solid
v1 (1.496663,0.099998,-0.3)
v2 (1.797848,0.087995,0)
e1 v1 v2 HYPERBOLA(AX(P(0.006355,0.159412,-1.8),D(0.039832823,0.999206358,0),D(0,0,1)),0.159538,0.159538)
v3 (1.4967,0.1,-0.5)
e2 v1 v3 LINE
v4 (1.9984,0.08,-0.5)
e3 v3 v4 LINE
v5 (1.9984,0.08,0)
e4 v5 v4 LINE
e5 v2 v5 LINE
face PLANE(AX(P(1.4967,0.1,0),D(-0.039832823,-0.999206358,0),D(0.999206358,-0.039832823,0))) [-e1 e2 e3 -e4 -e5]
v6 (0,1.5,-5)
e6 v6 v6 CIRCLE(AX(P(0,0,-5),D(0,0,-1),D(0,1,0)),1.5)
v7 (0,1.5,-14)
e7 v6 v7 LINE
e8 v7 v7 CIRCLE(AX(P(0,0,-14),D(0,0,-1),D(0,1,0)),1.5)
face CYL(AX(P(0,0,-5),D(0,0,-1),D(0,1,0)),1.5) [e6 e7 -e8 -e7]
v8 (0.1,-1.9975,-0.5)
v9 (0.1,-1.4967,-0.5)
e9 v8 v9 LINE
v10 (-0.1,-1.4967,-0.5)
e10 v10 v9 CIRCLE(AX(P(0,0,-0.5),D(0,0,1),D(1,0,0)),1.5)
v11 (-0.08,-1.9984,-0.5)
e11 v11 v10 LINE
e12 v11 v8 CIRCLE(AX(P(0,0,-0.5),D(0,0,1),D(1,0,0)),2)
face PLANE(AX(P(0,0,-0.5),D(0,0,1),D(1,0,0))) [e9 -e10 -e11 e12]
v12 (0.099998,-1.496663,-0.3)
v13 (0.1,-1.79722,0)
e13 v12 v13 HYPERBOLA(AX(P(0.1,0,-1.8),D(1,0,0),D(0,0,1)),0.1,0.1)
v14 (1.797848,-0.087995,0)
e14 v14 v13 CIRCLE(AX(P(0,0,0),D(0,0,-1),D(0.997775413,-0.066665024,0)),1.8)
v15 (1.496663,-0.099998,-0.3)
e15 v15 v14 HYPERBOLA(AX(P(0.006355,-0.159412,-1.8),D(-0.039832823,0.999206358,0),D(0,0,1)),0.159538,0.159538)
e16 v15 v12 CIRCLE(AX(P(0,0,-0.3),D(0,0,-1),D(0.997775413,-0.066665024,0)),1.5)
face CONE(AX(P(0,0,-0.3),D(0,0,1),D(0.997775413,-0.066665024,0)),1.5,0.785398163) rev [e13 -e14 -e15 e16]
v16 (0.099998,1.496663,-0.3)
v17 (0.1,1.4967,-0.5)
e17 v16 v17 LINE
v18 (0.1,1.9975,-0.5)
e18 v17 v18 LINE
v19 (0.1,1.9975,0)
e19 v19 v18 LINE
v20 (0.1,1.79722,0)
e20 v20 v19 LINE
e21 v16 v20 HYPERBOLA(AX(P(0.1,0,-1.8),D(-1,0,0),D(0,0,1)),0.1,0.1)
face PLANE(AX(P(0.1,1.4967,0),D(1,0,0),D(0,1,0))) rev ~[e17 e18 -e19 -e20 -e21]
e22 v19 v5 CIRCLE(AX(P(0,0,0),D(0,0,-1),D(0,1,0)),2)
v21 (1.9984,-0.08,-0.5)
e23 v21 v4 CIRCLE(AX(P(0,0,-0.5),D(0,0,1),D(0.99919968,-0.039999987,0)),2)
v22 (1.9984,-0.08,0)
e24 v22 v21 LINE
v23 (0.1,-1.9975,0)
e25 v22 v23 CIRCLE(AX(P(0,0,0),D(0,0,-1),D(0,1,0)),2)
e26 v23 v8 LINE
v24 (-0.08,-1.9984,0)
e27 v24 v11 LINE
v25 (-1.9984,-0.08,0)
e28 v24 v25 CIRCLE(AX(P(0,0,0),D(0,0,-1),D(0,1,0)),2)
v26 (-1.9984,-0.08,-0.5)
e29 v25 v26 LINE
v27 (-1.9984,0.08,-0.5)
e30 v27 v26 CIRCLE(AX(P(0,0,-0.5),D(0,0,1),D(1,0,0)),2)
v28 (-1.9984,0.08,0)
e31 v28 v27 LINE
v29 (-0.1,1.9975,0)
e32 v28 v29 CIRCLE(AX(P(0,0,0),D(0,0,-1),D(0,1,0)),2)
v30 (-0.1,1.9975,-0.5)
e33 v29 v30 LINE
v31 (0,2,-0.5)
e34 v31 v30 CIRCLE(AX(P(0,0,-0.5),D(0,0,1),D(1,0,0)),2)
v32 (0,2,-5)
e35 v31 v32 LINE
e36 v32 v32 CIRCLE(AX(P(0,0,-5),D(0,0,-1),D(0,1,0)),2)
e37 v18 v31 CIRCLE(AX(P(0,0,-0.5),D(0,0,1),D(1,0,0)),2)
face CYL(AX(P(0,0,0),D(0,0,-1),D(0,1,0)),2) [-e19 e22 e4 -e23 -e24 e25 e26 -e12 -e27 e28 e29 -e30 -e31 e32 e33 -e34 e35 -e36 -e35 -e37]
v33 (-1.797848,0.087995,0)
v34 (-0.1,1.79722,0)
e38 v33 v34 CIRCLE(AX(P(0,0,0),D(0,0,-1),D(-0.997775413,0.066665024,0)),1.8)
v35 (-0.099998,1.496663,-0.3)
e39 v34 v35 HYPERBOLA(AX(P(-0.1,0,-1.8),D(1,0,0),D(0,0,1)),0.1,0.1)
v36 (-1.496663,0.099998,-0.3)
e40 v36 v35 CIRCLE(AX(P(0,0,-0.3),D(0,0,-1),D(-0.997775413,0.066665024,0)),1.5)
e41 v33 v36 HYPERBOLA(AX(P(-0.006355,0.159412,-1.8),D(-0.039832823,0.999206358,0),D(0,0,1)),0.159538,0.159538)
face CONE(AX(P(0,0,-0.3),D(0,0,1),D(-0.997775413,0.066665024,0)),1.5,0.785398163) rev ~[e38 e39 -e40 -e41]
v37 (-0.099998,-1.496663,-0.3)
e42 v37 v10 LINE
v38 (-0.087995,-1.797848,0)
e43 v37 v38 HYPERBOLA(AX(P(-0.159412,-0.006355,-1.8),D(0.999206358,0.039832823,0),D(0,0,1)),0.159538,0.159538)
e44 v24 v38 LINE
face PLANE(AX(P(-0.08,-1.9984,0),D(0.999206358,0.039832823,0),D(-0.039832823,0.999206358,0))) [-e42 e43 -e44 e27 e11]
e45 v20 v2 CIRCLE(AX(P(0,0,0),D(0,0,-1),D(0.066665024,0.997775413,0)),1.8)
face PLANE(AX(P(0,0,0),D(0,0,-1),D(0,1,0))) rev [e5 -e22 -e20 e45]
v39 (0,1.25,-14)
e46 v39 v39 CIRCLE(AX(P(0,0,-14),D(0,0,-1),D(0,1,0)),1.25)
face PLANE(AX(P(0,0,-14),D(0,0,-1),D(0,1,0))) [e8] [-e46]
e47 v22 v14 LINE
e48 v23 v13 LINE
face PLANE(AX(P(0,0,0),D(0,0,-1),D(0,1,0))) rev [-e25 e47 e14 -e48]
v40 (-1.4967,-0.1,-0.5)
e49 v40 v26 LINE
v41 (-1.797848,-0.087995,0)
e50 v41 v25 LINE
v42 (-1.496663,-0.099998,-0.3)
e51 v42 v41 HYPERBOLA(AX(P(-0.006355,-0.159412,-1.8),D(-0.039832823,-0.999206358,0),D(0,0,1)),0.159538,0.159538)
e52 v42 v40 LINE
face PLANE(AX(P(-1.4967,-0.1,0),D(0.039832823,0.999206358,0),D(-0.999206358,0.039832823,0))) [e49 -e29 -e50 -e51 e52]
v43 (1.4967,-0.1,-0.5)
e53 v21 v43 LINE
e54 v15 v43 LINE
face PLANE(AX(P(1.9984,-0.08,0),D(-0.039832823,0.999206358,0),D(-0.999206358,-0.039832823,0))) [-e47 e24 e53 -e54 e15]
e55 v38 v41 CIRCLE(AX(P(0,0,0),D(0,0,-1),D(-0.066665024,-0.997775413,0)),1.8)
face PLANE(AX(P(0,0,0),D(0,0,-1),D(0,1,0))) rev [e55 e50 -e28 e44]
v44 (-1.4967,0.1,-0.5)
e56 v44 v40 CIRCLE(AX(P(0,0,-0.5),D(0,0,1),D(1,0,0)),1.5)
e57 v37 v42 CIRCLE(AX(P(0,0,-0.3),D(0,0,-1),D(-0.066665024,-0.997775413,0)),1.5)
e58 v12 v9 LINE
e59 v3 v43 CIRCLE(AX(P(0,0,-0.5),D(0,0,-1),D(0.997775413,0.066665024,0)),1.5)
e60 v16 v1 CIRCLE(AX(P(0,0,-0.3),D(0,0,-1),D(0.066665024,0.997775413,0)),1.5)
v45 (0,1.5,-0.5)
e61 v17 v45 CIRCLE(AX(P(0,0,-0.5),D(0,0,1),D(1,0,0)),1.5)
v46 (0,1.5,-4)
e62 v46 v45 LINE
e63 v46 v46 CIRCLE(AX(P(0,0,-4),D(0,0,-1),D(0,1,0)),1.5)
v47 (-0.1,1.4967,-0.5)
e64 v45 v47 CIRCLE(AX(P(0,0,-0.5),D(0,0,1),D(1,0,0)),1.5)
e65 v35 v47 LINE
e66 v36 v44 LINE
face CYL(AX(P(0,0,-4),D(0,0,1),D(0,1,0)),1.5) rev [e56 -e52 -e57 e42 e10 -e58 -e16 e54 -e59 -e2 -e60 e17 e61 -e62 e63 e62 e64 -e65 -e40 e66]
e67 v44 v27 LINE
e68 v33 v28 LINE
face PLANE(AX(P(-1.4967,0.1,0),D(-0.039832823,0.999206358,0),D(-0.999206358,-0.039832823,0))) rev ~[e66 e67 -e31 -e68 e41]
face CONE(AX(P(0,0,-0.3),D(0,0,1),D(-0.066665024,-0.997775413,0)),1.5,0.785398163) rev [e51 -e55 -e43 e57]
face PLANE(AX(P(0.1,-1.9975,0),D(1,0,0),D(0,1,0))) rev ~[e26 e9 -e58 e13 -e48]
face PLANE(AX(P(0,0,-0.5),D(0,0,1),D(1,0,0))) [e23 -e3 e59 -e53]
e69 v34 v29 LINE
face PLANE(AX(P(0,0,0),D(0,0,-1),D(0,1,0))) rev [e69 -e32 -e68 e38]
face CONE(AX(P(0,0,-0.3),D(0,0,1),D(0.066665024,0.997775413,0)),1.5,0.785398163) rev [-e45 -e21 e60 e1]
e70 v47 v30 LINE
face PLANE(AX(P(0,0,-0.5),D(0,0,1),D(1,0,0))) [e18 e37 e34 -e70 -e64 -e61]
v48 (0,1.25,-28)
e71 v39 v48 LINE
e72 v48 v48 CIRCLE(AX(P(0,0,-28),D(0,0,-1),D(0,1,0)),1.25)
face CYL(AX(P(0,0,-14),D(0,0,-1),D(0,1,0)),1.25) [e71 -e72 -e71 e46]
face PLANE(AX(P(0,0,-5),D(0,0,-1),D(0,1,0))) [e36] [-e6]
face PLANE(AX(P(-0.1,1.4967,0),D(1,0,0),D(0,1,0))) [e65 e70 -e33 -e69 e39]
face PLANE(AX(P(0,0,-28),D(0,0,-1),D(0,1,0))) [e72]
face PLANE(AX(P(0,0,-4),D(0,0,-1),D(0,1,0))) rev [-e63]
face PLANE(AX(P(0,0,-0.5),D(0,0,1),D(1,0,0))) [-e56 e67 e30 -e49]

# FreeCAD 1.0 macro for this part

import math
import FreeCAD as App
import Part
import Sketcher

V = App.Vector


def edges_at(feature, points):
    """Names of the edges that pass closest to the given points."""
    edges = feature.Shape.Edges
    near = lambda p: min(range(len(edges)), key=lambda i: edges[i].distToShape(Part.Vertex(*p))[0])
    return sorted({f"Edge{near(p) + 1}" for p in points})


def add_polygon(sketch, points):
    """Adds a closed chain of lines whose ends are joined by coincident constraints."""
    first, n = sketch.GeometryCount, len(points)
    for a, b in zip(points, points[1:] + points[:1]):
        sketch.addGeometry(Part.LineSegment(App.Vector(*a, 0), App.Vector(*b, 0)), False)
    for i in range(n):
        sketch.addConstraint(Sketcher.Constraint("Coincident", first + i, 2, first + (i + 1) % n, 1))

doc = App.newDocument("Part")
params = doc.addObject("Spreadsheet::Sheet", "Params")
for row, (alias, value) in enumerate([
    ("sketch1_height", "4 mm"),
    ("sketch1_height2", "9 mm"),
    ("sketch1_height3", "5 mm"),
    ("sketch1_width", "0.5 mm"),
    ("sketch1_width2", "1.25 mm"),
    ("revolution_angle", "360 deg"),
    ("sketch2_radius", "2 mm"),
    ("sketch2_radius2", "1.5 mm"),
    ("pocket1_length", "0.5 mm"),
    ("chamfer_size", "0.3 mm"),
], start=1):
    params.set(f"A{row}", alias)
    params.set(f"B{row}", "=" + value)
    params.setAlias(f"B{row}", alias)

body = doc.addObject("PartDesign::Body", "Body")

sketch1 = doc.addObject("Sketcher::SketchObject", "Sketch")
body.addObject(sketch1)
sketch1.AttachmentSupport = (doc.YZ_Plane, [""])
sketch1.MapMode = "FlatFace"
add_polygon(sketch1, [(2, 0), (1.5, 0), (1.5, -4), (0, -4), (0, -28), (1.25, -28), (1.25, -14), (1.5, -14), (1.5, -5), (2, -5)])
sketch1.addConstraint(Sketcher.Constraint("Horizontal", 0))
sketch1.addConstraint(Sketcher.Constraint("Vertical", 1))
sketch1.addConstraint(Sketcher.Constraint("Horizontal", 2))
sketch1.addConstraint(Sketcher.Constraint("Vertical", 3))
sketch1.addConstraint(Sketcher.Constraint("Horizontal", 4))
sketch1.addConstraint(Sketcher.Constraint("Vertical", 5))
sketch1.addConstraint(Sketcher.Constraint("Horizontal", 6))
sketch1.addConstraint(Sketcher.Constraint("Vertical", 7))
sketch1.addConstraint(Sketcher.Constraint("Horizontal", 8))
sketch1.addConstraint(Sketcher.Constraint("Vertical", 9))
sketch1.addConstraint(Sketcher.Constraint("PointOnObject", 0, 2, -1))
sketch1.addConstraint(Sketcher.Constraint("PointOnObject", 2, 2, -2))
sketch1.addConstraint(Sketcher.Constraint("Vertical", 1, 2, 6, 2))
sketch1.addConstraint(Sketcher.Constraint("DistanceY", 1, 2, 1, 1, 4.0))
sketch1.addConstraint(Sketcher.Constraint("DistanceY", 7, 1, 7, 2, 9.0))
sketch1.addConstraint(Sketcher.Constraint("DistanceY", 9, 1, 9, 2, 5.0))
sketch1.addConstraint(Sketcher.Constraint("DistanceX", 0, 2, 0, 1, 0.5))
sketch1.addConstraint(Sketcher.Constraint("DistanceY", 3, 2, -1, 1, 28.0))
sketch1.addConstraint(Sketcher.Constraint("DistanceX", 4, 1, 4, 2, 1.25))
sketch1.addConstraint(Sketcher.Constraint("DistanceX", 2, 2, 2, 1, 1.5))
sketch1.setExpression("Constraints[23]", "Params.sketch1_height")
sketch1.setExpression("Constraints[24]", "Params.sketch1_height2")
sketch1.setExpression("Constraints[25]", "Params.sketch1_height3")
sketch1.setExpression("Constraints[26]", "Params.sketch1_width")
sketch1.setExpression("Constraints[28]", "Params.sketch1_width2")
revolution = doc.addObject("PartDesign::Revolution", "Revolution")
body.addObject(revolution)
revolution.Profile = sketch1
revolution.ReferenceAxis = (sketch1, ["V_Axis"])
revolution.setExpression("Angle", "Params.revolution_angle")

sketch2 = doc.addObject("Sketcher::SketchObject", "Sketch001")
body.addObject(sketch2)
sketch2.AttachmentSupport = (doc.XY_Plane, [""])
sketch2.MapMode = "FlatFace"
sketch2.addGeometry(Part.ArcOfCircle(Part.Circle(V(0, 0, 0), V(0, 0, 1), 2), math.radians(-2.292442), math.radians(2.292442)), False)
sketch2.addGeometry(Part.LineSegment(V(1.9984, 0.08, 0), V(1.4967, 0.1, 0)), False)
sketch2.addGeometry(Part.ArcOfCircle(Part.Circle(V(0, 0, 0), V(0, 0, 1), 1.5), math.radians(-3.822459), math.radians(3.822459)), False)
sketch2.addGeometry(Part.LineSegment(V(1.4967, -0.1, 0), V(1.9984, -0.08, 0)), False)
sketch2.addGeometry(Part.LineSegment(V(0.1, 1.4967, 0), V(0.1, 1.9975, 0)), False)
sketch2.addGeometry(Part.ArcOfCircle(Part.Circle(V(0, 0, 0), V(0, 0, 1), 2), math.radians(87.134018), math.radians(92.865982)), False)
sketch2.addGeometry(Part.LineSegment(V(-0.1, 1.9975, 0), V(-0.1, 1.4967, 0)), False)
sketch2.addGeometry(Part.ArcOfCircle(Part.Circle(V(0, 0, 0), V(0, 0, 1), 1.5), math.radians(86.177541), math.radians(93.822459)), False)
sketch2.addGeometry(Part.ArcOfCircle(Part.Circle(V(0, 0, 0), V(0, 0, 1), 2), math.radians(-92.292442), math.radians(-87.134018)), False)
sketch2.addGeometry(Part.LineSegment(V(0.1, -1.9975, 0), V(0.1, -1.4967, 0)), False)
sketch2.addGeometry(Part.ArcOfCircle(Part.Circle(V(0, 0, 0), V(0, 0, 1), 1.5), math.radians(-93.822459), math.radians(-86.177541)), False)
sketch2.addGeometry(Part.LineSegment(V(-0.1, -1.4967, 0), V(-0.08, -1.9984, 0)), False)
sketch2.addGeometry(Part.LineSegment(V(-1.4967, 0.1, 0), V(-1.9984, 0.08, 0)), False)
sketch2.addGeometry(Part.ArcOfCircle(Part.Circle(V(0, 0, 0), V(0, 0, 1), 2), math.radians(177.707558), math.radians(182.292442)), False)
sketch2.addGeometry(Part.LineSegment(V(-1.9984, -0.08, 0), V(-1.4967, -0.1, 0)), False)
sketch2.addGeometry(Part.ArcOfCircle(Part.Circle(V(0, 0, 0), V(0, 0, 1), 1.5), math.radians(176.177541), math.radians(183.822459)), False)
sketch2.addConstraint(Sketcher.Constraint("Coincident", 0, 2, 1, 1))
sketch2.addConstraint(Sketcher.Constraint("Coincident", 1, 2, 2, 2))
sketch2.addConstraint(Sketcher.Constraint("Coincident", 2, 1, 3, 1))
sketch2.addConstraint(Sketcher.Constraint("Coincident", 3, 2, 0, 1))
sketch2.addConstraint(Sketcher.Constraint("Coincident", 4, 2, 5, 1))
sketch2.addConstraint(Sketcher.Constraint("Coincident", 5, 2, 6, 1))
sketch2.addConstraint(Sketcher.Constraint("Coincident", 6, 2, 7, 2))
sketch2.addConstraint(Sketcher.Constraint("Coincident", 7, 1, 4, 1))
sketch2.addConstraint(Sketcher.Constraint("Coincident", 8, 2, 9, 1))
sketch2.addConstraint(Sketcher.Constraint("Coincident", 9, 2, 10, 2))
sketch2.addConstraint(Sketcher.Constraint("Coincident", 10, 1, 11, 1))
sketch2.addConstraint(Sketcher.Constraint("Coincident", 11, 2, 8, 1))
sketch2.addConstraint(Sketcher.Constraint("Coincident", 12, 2, 13, 1))
sketch2.addConstraint(Sketcher.Constraint("Coincident", 13, 2, 14, 1))
sketch2.addConstraint(Sketcher.Constraint("Coincident", 14, 2, 15, 2))
sketch2.addConstraint(Sketcher.Constraint("Coincident", 15, 1, 12, 1))
sketch2.addConstraint(Sketcher.Constraint("Vertical", 4))
sketch2.addConstraint(Sketcher.Constraint("Vertical", 6))
sketch2.addConstraint(Sketcher.Constraint("Vertical", 9))
sketch2.addConstraint(Sketcher.Constraint("Coincident", 0, 3, -1, 1))
sketch2.addConstraint(Sketcher.Constraint("Coincident", 2, 3, -1, 1))
sketch2.addConstraint(Sketcher.Constraint("Coincident", 5, 3, -1, 1))
sketch2.addConstraint(Sketcher.Constraint("Coincident", 7, 3, -1, 1))
sketch2.addConstraint(Sketcher.Constraint("Coincident", 8, 3, -1, 1))
sketch2.addConstraint(Sketcher.Constraint("Coincident", 10, 3, -1, 1))
sketch2.addConstraint(Sketcher.Constraint("Coincident", 13, 3, -1, 1))
sketch2.addConstraint(Sketcher.Constraint("Coincident", 15, 3, -1, 1))
sketch2.addConstraint(Sketcher.Constraint("Equal", 0, 5))
sketch2.addConstraint(Sketcher.Constraint("Equal", 2, 7))
sketch2.addConstraint(Sketcher.Constraint("Equal", 5, 8))
sketch2.addConstraint(Sketcher.Constraint("Equal", 7, 10))
sketch2.addConstraint(Sketcher.Constraint("Equal", 8, 13))
sketch2.addConstraint(Sketcher.Constraint("Equal", 10, 15))
sketch2.addConstraint(Sketcher.Constraint("Perpendicular", 3, 11))
sketch2.addConstraint(Sketcher.Constraint("Perpendicular", 11, 12))
sketch2.addConstraint(Sketcher.Constraint("Parallel", 1, 14))
sketch2.addConstraint(Sketcher.Constraint("Horizontal", 4, 2, 5, 2))
sketch2.addConstraint(Sketcher.Constraint("Horizontal", 9, 2, 10, 1))
sketch2.addConstraint(Sketcher.Constraint("Horizontal", 0, 2, 12, 2))
sketch2.addConstraint(Sketcher.Constraint("Horizontal", 3, 2, 13, 2))
sketch2.addConstraint(Sketcher.Constraint("Horizontal", 2, 1, 14, 2))
sketch2.addConstraint(Sketcher.Constraint("Vertical", 1, 2, 2, 1))
sketch2.addConstraint(Sketcher.Constraint("Vertical", 7, 1, 8, 2))
sketch2.addConstraint(Sketcher.Constraint("Equal", 3, 11))
sketch2.addConstraint(Sketcher.Constraint("Radius", 0, 2.0))
sketch2.addConstraint(Sketcher.Constraint("DistanceY", -1, 1, 1, 2, 0.1))
sketch2.addConstraint(Sketcher.Constraint("Radius", 2, 1.5))
sketch2.addConstraint(Sketcher.Constraint("DistanceY", -1, 1, 0, 2, 0.08))
sketch2.setExpression("Constraints[44]", "Params.sketch2_radius")
sketch2.setExpression("Constraints[46]", "Params.sketch2_radius2")
pocket1 = doc.addObject("PartDesign::Pocket", "Pocket")
body.addObject(pocket1)
pocket1.Profile = sketch2
pocket1.setExpression("Length", "Params.pocket1_length")
doc.recompute()

chamfer = doc.addObject("PartDesign::Chamfer", "Chamfer")
body.addObject(chamfer)
chamfer.Base = (pocket1, edges_at(pocket1, [
    (1.061, 1.061, 0),
    (-1.061, 1.061, 0),
    (-1.061, -1.061, 0),
    (1.061, -1.061, 0),
]))
chamfer.setExpression("Size", "Params.chamfer_size")

doc.recompute()
